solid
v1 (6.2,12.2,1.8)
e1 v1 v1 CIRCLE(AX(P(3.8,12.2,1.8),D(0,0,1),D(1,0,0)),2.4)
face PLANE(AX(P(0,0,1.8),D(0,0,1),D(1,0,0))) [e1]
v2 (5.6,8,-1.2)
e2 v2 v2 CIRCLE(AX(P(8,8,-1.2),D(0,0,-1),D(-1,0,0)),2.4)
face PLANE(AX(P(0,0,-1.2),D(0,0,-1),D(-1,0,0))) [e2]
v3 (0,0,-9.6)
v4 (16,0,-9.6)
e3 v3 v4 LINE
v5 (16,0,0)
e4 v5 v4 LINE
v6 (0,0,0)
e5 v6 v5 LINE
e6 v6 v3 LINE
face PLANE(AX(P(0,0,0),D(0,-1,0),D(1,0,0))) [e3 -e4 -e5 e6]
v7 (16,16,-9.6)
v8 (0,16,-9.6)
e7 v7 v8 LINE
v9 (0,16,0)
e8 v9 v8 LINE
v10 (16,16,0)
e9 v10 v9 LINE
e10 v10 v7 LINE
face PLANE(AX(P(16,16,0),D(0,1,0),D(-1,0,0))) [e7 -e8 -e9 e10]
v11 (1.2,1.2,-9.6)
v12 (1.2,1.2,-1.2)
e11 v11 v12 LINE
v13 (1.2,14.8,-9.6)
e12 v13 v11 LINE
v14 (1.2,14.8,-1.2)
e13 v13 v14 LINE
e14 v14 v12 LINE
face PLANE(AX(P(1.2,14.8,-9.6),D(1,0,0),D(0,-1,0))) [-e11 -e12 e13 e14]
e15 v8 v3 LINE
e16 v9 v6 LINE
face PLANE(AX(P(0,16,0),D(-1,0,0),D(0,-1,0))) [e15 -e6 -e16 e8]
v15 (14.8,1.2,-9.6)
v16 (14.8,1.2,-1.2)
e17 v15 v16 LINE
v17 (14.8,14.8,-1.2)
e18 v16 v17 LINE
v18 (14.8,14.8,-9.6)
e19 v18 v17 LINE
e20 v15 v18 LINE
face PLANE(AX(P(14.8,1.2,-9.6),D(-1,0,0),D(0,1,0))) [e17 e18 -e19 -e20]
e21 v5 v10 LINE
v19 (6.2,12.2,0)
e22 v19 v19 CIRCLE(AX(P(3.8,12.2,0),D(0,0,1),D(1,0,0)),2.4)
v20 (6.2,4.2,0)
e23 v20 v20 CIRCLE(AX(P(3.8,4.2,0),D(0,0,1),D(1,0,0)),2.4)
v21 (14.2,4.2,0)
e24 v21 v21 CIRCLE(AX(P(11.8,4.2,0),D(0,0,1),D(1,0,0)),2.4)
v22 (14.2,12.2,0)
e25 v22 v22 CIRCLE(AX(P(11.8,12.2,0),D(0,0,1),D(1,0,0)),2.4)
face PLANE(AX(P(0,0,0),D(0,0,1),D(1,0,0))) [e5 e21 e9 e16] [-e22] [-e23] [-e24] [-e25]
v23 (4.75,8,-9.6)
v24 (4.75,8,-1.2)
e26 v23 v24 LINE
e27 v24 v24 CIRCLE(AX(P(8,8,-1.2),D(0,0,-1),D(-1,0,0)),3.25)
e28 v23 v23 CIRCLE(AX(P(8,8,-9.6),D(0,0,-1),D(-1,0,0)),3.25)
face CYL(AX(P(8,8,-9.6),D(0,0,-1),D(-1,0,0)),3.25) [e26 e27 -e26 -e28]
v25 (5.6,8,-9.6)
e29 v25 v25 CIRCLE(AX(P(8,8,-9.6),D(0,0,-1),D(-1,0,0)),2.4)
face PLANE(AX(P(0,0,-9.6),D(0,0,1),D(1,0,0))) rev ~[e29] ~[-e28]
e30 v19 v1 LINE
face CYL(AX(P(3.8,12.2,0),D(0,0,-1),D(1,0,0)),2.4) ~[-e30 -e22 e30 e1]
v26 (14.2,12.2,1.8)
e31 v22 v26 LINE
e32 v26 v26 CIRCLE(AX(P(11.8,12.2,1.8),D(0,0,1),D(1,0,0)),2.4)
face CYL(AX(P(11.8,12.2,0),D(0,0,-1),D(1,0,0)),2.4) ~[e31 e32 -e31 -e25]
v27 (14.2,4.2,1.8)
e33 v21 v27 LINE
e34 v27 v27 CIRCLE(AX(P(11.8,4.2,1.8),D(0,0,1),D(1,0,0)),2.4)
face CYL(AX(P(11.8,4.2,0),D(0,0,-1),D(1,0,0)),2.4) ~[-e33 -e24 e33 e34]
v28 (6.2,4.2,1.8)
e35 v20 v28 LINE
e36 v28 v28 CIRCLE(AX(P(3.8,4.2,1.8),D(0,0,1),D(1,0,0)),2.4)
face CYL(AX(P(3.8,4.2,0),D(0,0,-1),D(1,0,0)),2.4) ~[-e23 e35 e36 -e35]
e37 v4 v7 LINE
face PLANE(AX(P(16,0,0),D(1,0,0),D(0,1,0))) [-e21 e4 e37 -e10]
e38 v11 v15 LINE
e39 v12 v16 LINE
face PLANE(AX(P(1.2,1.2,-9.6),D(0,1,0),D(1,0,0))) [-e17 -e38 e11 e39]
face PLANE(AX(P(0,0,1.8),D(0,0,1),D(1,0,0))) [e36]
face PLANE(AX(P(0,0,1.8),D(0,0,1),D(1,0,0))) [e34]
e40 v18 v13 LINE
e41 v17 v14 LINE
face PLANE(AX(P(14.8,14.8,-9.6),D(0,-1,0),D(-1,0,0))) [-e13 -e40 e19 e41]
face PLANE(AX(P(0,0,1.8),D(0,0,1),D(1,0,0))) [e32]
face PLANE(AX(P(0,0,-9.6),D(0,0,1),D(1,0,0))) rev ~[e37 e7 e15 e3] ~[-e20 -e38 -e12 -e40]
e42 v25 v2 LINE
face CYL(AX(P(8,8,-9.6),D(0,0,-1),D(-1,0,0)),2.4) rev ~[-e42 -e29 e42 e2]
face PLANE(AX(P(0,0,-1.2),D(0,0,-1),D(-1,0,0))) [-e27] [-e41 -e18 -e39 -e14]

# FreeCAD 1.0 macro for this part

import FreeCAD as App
import Part
import Sketcher

V = App.Vector
Q = App.Units.Quantity


def add_polygon(sketch, points):
    """Adds a closed chain of lines whose ends are joined by coincident constraints."""
    first, n = sketch.GeometryCount, len(points)
    for a, b in zip(points, points[1:] + points[:1]):
        sketch.addGeometry(Part.LineSegment(App.Vector(*a, 0), App.Vector(*b, 0)), False)
    for i in range(n):
        sketch.addConstraint(Sketcher.Constraint("Coincident", first + i, 2, first + (i + 1) % n, 1))

doc = App.newDocument("Part")
body = doc.addObject("PartDesign::Body", "Body")

# Sketch on XY plane
sketch1 = body.newObject("Sketcher::SketchObject", "Sketch")
sketch1.AttachmentSupport = (doc.getObject("XY_Plane"), [""])
sketch1.MapMode = "FlatFace"
add_polygon(sketch1, [(0, 16), (0, 0), (16, 0), (16, 16)])  # lines 0-3
sketch1.addConstraint(Sketcher.Constraint("Vertical", 0))
sketch1.addConstraint(Sketcher.Constraint("Horizontal", 1))
sketch1.addConstraint(Sketcher.Constraint("Vertical", 2))
sketch1.addConstraint(Sketcher.Constraint("Horizontal", 3))
sketch1.addConstraint(Sketcher.Constraint("Coincident", 0, 2, -1, 1))
sketch1.addConstraint(Sketcher.Constraint("Equal", 3, 0))
sketch1.addConstraint(Sketcher.Constraint("DistanceX", 1, 1, 1, 2, Q("16 mm")))
pad1 = body.newObject("PartDesign::Pad", "Pad")
pad1.Profile = sketch1
pad1.Length = 9.6
pad1.Reversed = True

# Sketch on XY plane
sketch2 = body.newObject("Sketcher::SketchObject", "Sketch001")
sketch2.AttachmentSupport = (doc.getObject("XY_Plane"), [""])
sketch2.MapMode = "FlatFace"
sketch2.addGeometry(Part.Circle(V(3.8, 12.2, 0), V(0, 0, 1), 2.4), False)
sketch2.addGeometry(Part.Circle(V(11.8, 12.2, 0), V(0, 0, 1), 2.4), False)
sketch2.addGeometry(Part.Circle(V(3.8, 4.2, 0), V(0, 0, 1), 2.4), False)
sketch2.addGeometry(Part.Circle(V(11.8, 4.2, 0), V(0, 0, 1), 2.4), False)
sketch2.addConstraint(Sketcher.Constraint("Equal", 0, 1))
sketch2.addConstraint(Sketcher.Constraint("Equal", 1, 2))
sketch2.addConstraint(Sketcher.Constraint("Equal", 2, 3))
sketch2.addConstraint(Sketcher.Constraint("Horizontal", 0, 3, 1, 3))
sketch2.addConstraint(Sketcher.Constraint("Horizontal", 2, 3, 3, 3))
sketch2.addConstraint(Sketcher.Constraint("Vertical", 0, 3, 2, 3))
sketch2.addConstraint(Sketcher.Constraint("Vertical", 1, 3, 3, 3))
sketch2.addConstraint(Sketcher.Constraint("Diameter", 0, Q("4.8 mm")))
sketch2.addConstraint(Sketcher.Constraint("DistanceX", 0, 3, 1, 3, Q("8 mm")))
sketch2.addConstraint(Sketcher.Constraint("DistanceY", 2, 3, 0, 3, Q("8 mm")))
sketch2.addConstraint(Sketcher.Constraint("DistanceX", -1, 1, 0, 3, Q("3.8 mm")))
sketch2.addConstraint(Sketcher.Constraint("DistanceY", -1, 1, 0, 3, Q("12.2 mm")))
pad2 = body.newObject("PartDesign::Pad", "Pad001")
pad2.Profile = sketch2
pad2.Length = 1.8

# Sketch on XY plane
sketch3 = body.newObject("Sketcher::SketchObject", "Sketch002")
sketch3.AttachmentSupport = (doc.getObject("XY_Plane"), [""])
sketch3.MapMode = "FlatFace"
sketch3.AttachmentOffset = App.Placement(V(0, 0, -9.6), App.Rotation())
add_polygon(sketch3, [(1.2, 14.8), (14.8, 14.8), (14.8, 1.2), (1.2, 1.2)])  # lines 0-3
sketch3.addGeometry(Part.Circle(V(8, 8, 0), V(0, 0, 1), 3.2), False)  # 4
sketch3.addGeometry(Part.Circle(V(8, 8, 0), V(0, 0, 1), 2.4), False)  # 5
sketch3.addConstraint(Sketcher.Constraint("Horizontal", 0))
sketch3.addConstraint(Sketcher.Constraint("Vertical", 1))
sketch3.addConstraint(Sketcher.Constraint("Horizontal", 2))
sketch3.addConstraint(Sketcher.Constraint("Vertical", 3))
sketch3.addConstraint(Sketcher.Constraint("Coincident", 5, 3, 4, 3))
sketch3.addConstraint(Sketcher.Constraint("Equal", 2, 1))
sketch3.addConstraint(Sketcher.Constraint("Diameter", 4, Q("6.5 mm")))
sketch3.addConstraint(Sketcher.Constraint("Diameter", 5, Q("4.8 mm")))
sketch3.addConstraint(Sketcher.Constraint("DistanceX", -1, 1, 4, 3, Q("8 mm")))
sketch3.addConstraint(Sketcher.Constraint("DistanceY", -1, 1, 4, 3, Q("8 mm")))
sketch3.addConstraint(Sketcher.Constraint("DistanceY", -1, 1, 1, 2, Q("1.2 mm")))
sketch3.addConstraint(Sketcher.Constraint("DistanceX", -1, 1, 2, 2, Q("1.2 mm")))
sketch3.addConstraint(Sketcher.Constraint("DistanceX", 0, 1, 0, 2, Q("13.6 mm")))
pocket1 = body.newObject("PartDesign::Pocket", "Pocket")
pocket1.Profile = sketch3
pocket1.Length = 8.4
pocket1.Reversed = True

doc.recompute()
